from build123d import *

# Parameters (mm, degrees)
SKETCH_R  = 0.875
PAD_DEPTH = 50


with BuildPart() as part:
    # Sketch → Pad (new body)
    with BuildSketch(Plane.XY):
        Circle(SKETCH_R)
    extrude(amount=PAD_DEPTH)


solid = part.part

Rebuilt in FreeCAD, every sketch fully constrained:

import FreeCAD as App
import Part
import Sketcher

doc = App.newDocument("Part")
body = doc.addObject("PartDesign::Body", "Body")

sketch1 = body.newObject("Sketcher::SketchObject", "Sketch")
sketch1.AttachmentSupport = (doc.getObject("XY_Plane"), [""])
sketch1.MapMode = "FlatFace"
sketch1.addGeometry(Part.Circle(App.Vector(0, 0, 0), App.Vector(0, 0, 1), 0.9), False)
sketch1.addConstraint(Sketcher.Constraint("Coincident", 0, 3, -1, 1))
sketch1.addConstraint(Sketcher.Constraint("Diameter", 0, 1.75))
pad1 = body.newObject("PartDesign::Pad", "Pad")
pad1.Profile = sketch1
pad1.Length = 50

doc.recompute()
